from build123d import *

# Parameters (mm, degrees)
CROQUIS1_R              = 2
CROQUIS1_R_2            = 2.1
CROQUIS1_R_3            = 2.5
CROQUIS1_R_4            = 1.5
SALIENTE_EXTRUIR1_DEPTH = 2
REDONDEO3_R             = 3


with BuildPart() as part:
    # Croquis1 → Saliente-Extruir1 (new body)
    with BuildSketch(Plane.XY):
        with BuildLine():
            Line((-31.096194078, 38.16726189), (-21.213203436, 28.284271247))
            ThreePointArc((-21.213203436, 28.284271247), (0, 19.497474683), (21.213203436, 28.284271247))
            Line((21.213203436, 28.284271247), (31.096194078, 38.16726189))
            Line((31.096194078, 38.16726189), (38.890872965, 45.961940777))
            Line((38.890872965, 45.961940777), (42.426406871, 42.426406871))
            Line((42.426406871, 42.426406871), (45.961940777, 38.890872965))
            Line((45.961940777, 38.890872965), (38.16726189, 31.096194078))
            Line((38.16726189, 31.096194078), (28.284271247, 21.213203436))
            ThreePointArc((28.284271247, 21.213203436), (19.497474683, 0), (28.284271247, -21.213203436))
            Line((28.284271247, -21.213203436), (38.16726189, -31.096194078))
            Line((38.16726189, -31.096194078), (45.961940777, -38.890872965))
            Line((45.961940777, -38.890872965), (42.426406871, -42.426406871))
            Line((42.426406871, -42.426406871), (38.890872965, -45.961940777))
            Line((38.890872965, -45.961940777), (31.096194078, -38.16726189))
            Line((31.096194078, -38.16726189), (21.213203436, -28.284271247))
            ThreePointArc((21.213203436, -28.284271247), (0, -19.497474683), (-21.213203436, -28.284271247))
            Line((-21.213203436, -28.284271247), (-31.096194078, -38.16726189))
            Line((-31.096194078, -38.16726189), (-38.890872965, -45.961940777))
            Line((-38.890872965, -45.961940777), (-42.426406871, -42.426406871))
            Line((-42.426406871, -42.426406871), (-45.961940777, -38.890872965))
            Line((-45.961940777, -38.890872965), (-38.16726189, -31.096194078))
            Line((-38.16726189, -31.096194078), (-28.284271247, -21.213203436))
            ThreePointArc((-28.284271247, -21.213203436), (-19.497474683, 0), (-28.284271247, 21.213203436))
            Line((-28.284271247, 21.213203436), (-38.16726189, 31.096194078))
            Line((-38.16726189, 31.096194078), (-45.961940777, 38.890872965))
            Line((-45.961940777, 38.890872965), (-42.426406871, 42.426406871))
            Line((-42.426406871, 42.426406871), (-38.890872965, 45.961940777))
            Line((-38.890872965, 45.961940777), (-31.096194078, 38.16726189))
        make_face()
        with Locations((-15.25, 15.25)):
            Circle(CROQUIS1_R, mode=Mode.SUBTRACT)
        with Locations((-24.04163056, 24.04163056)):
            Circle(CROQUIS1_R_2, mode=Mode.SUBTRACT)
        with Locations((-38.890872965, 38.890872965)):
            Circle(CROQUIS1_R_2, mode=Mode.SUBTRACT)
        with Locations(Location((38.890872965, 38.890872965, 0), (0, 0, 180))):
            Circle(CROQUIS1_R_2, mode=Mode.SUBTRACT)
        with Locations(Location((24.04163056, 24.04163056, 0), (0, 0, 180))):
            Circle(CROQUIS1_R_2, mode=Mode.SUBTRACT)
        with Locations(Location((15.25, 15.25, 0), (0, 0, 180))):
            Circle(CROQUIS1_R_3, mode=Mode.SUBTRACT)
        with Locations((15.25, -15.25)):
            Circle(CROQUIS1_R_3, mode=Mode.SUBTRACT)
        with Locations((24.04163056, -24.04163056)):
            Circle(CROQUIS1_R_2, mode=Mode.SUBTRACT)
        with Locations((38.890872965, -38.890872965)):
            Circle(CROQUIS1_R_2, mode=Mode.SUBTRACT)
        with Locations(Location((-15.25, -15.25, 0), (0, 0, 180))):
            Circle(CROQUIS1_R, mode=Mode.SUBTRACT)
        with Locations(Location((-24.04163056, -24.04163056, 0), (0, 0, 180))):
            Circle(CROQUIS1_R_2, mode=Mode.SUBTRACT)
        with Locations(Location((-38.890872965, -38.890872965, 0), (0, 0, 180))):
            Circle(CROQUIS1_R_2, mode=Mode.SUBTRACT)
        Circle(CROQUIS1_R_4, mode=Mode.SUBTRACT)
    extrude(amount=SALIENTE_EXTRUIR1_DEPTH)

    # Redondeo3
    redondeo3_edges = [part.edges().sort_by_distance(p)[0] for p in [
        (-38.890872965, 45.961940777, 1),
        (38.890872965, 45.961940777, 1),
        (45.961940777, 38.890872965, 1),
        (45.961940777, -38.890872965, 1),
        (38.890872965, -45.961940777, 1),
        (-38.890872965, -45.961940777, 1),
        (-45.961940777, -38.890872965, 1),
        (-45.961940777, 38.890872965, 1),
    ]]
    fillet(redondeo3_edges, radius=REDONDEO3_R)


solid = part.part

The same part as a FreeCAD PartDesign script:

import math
import FreeCAD as App
import Part
import Sketcher
from FreeCAD import Vector
Q = App.Units.Quantity


def edges_at(feature, points):
    """Names of the edges that pass closest to the given points."""
    edges = feature.Shape.Edges
    near = lambda p: min(range(len(edges)), key=lambda i: edges[i].distToShape(Part.Vertex(*p))[0])
    return sorted({f"Edge{near(p) + 1}" for p in points})

doc = App.newDocument("Part")
params = doc.addObject("Spreadsheet::Sheet", "Params")
for row, (alias, value) in enumerate([
    ("sketch1_diameter", "5 mm"),
    ("sketch1_diameter2", "4 mm"),
    ("sketch1_diameter3", "3 mm"),
    ("sketch1_radius", "30 mm"),
    ("sketch1_diameter4", "4.2 mm"),
    ("pad1_length", "2 mm"),
    ("fillet_radius", "3 mm"),
], start=1):
    params.set(f"A{row}", alias)
    params.set(f"B{row}", "=" + value)
    params.setAlias(f"B{row}", alias)

body = doc.addObject("PartDesign::Body", "Body")

sketch1 = body.newObject("Sketcher::SketchObject", "Sketch")
sketch1.AttachmentSupport = (doc.getObject("XY_Plane"), [""])
sketch1.MapMode = "FlatFace"
sketch1.addGeometry(Part.LineSegment(Vector(-21.213203, 28.284271, 0), Vector(-31.096194, 38.167262, 0)), False)
sketch1.addGeometry(Part.LineSegment(Vector(-31.096194, 38.167262, 0), Vector(-38.890873, 45.961941, 0)), False)
sketch1.addGeometry(Part.LineSegment(Vector(-38.890873, 45.961941, 0), Vector(-45.961941, 38.890873, 0)), False)
sketch1.addGeometry(Part.LineSegment(Vector(-45.961941, 38.890873, 0), Vector(-38.167262, 31.096194, 0)), False)
sketch1.addGeometry(Part.LineSegment(Vector(-38.167262, 31.096194, 0), Vector(-28.284271, 21.213203, 0)), False)
sketch1.addGeometry(Part.ArcOfCircle(Part.Circle(Vector(-49.497475, 0, 0), Vector(0, 0, 1), 30), math.radians(-45), math.radians(45)), False)
sketch1.addGeometry(Part.LineSegment(Vector(-28.284271, -21.213203, 0), Vector(-38.167262, -31.096194, 0)), False)
sketch1.addGeometry(Part.LineSegment(Vector(-38.167262, -31.096194, 0), Vector(-45.961941, -38.890873, 0)), False)
sketch1.addGeometry(Part.LineSegment(Vector(-45.961941, -38.890873, 0), Vector(-38.890873, -45.961941, 0)), False)
sketch1.addGeometry(Part.LineSegment(Vector(-38.890873, -45.961941, 0), Vector(-31.096194, -38.167262, 0)), False)
sketch1.addGeometry(Part.LineSegment(Vector(-31.096194, -38.167262, 0), Vector(-21.213203, -28.284271, 0)), False)
sketch1.addGeometry(Part.ArcOfCircle(Part.Circle(Vector(0, -49.497475, 0), Vector(0, 0, 1), 30), math.radians(45), math.radians(135)), False)
sketch1.addGeometry(Part.LineSegment(Vector(21.213203, -28.284271, 0), Vector(31.096194, -38.167262, 0)), False)
sketch1.addGeometry(Part.LineSegment(Vector(31.096194, -38.167262, 0), Vector(38.890873, -45.961941, 0)), False)
sketch1.addGeometry(Part.LineSegment(Vector(38.890873, -45.961941, 0), Vector(45.961941, -38.890873, 0)), False)
sketch1.addGeometry(Part.LineSegment(Vector(45.961941, -38.890873, 0), Vector(38.167262, -31.096194, 0)), False)
sketch1.addGeometry(Part.LineSegment(Vector(38.167262, -31.096194, 0), Vector(28.284271, -21.213203, 0)), False)
sketch1.addGeometry(Part.ArcOfCircle(Part.Circle(Vector(49.497475, 0, 0), Vector(0, 0, 1), 30), math.radians(135), math.radians(225)), False)
sketch1.addGeometry(Part.LineSegment(Vector(28.284271, 21.213203, 0), Vector(38.167262, 31.096194, 0)), False)
sketch1.addGeometry(Part.LineSegment(Vector(38.167262, 31.096194, 0), Vector(45.961941, 38.890873, 0)), False)
sketch1.addGeometry(Part.LineSegment(Vector(45.961941, 38.890873, 0), Vector(38.890873, 45.961941, 0)), False)
sketch1.addGeometry(Part.LineSegment(Vector(38.890873, 45.961941, 0), Vector(31.096194, 38.167262, 0)), False)
sketch1.addGeometry(Part.LineSegment(Vector(31.096194, 38.167262, 0), Vector(21.213203, 28.284271, 0)), False)
sketch1.addGeometry(Part.ArcOfCircle(Part.Circle(Vector(0, 49.497475, 0), Vector(0, 0, 1), 30), math.radians(-135), math.radians(-45)), False)
sketch1.addGeometry(Part.Circle(Vector(38.890873, -38.890873, 0), Vector(0, 0, 1), 2.1), False)
sketch1.addGeometry(Part.Circle(Vector(24.041631, -24.041631, 0), Vector(0, 0, 1), 2.1), False)
sketch1.addGeometry(Part.Circle(Vector(15.25, -15.25, 0), Vector(0, 0, 1), 2.5), False)
sketch1.addGeometry(Part.Circle(Vector(-38.890873, -38.890873, 0), Vector(0, 0, 1), 2.1), False)
sketch1.addGeometry(Part.Circle(Vector(-24.041631, -24.041631, 0), Vector(0, 0, 1), 2.1), False)
sketch1.addGeometry(Part.Circle(Vector(-15.25, -15.25, 0), Vector(0, 0, 1), 2), False)
sketch1.addGeometry(Part.Circle(Vector(15.25, 15.25, 0), Vector(0, 0, 1), 2.5), False)
sketch1.addGeometry(Part.Circle(Vector(24.041631, 24.041631, 0), Vector(0, 0, 1), 2.1), False)
sketch1.addGeometry(Part.Circle(Vector(38.890873, 38.890873, 0), Vector(0, 0, 1), 2.1), False)
sketch1.addGeometry(Part.Circle(Vector(0, 0, 0), Vector(0, 0, 1), 1.5), False)
sketch1.addGeometry(Part.Circle(Vector(-15.25, 15.25, 0), Vector(0, 0, 1), 2), False)
sketch1.addGeometry(Part.Circle(Vector(-24.041631, 24.041631, 0), Vector(0, 0, 1), 2.1), False)
sketch1.addGeometry(Part.Circle(Vector(-38.890873, 38.890873, 0), Vector(0, 0, 1), 2.1), False)
sketch1.addConstraint(Sketcher.Constraint("Coincident", 0, 2, 1, 1))
sketch1.addConstraint(Sketcher.Constraint("Coincident", 1, 2, 2, 1))
sketch1.addConstraint(Sketcher.Constraint("Coincident", 2, 2, 3, 1))
sketch1.addConstraint(Sketcher.Constraint("Coincident", 3, 2, 4, 1))
sketch1.addConstraint(Sketcher.Constraint("Tangent", 4, 2, 5, 2))
sketch1.addConstraint(Sketcher.Constraint("Tangent", 5, 1, 6, 1))
sketch1.addConstraint(Sketcher.Constraint("Coincident", 6, 2, 7, 1))
sketch1.addConstraint(Sketcher.Constraint("Coincident", 7, 2, 8, 1))
sketch1.addConstraint(Sketcher.Constraint("Coincident", 8, 2, 9, 1))
sketch1.addConstraint(Sketcher.Constraint("Coincident", 9, 2, 10, 1))
sketch1.addConstraint(Sketcher.Constraint("Tangent", 10, 2, 11, 2))
sketch1.addConstraint(Sketcher.Constraint("Tangent", 11, 1, 12, 1))
sketch1.addConstraint(Sketcher.Constraint("Coincident", 12, 2, 13, 1))
sketch1.addConstraint(Sketcher.Constraint("Coincident", 13, 2, 14, 1))
sketch1.addConstraint(Sketcher.Constraint("Coincident", 14, 2, 15, 1))
sketch1.addConstraint(Sketcher.Constraint("Coincident", 15, 2, 16, 1))
sketch1.addConstraint(Sketcher.Constraint("Tangent", 16, 2, 17, 2))
sketch1.addConstraint(Sketcher.Constraint("Tangent", 17, 1, 18, 1))
sketch1.addConstraint(Sketcher.Constraint("Coincident", 18, 2, 19, 1))
sketch1.addConstraint(Sketcher.Constraint("Coincident", 19, 2, 20, 1))
sketch1.addConstraint(Sketcher.Constraint("Coincident", 20, 2, 21, 1))
sketch1.addConstraint(Sketcher.Constraint("Coincident", 21, 2, 22, 1))
sketch1.addConstraint(Sketcher.Constraint("Tangent", 22, 2, 23, 2))
sketch1.addConstraint(Sketcher.Constraint("Tangent", 23, 1, 0, 1))
sketch1.addConstraint(Sketcher.Constraint("Coincident", 33, 3, -1, 1))
sketch1.addConstraint(Sketcher.Constraint("Equal", 5, 11))
sketch1.addConstraint(Sketcher.Constraint("Equal", 11, 17))
sketch1.addConstraint(Sketcher.Constraint("Equal", 17, 23))
sketch1.addConstraint(Sketcher.Constraint("Equal", 24, 25))
sketch1.addConstraint(Sketcher.Constraint("Equal", 25, 27))
sketch1.addConstraint(Sketcher.Constraint("Equal", 27, 28))
sketch1.addConstraint(Sketcher.Constraint("Equal", 26, 30))
sketch1.addConstraint(Sketcher.Constraint("Equal", 28, 31))
sketch1.addConstraint(Sketcher.Constraint("Equal", 31, 32))
sketch1.addConstraint(Sketcher.Constraint("Equal", 29, 34))
sketch1.addConstraint(Sketcher.Constraint("Equal", 32, 35))
sketch1.addConstraint(Sketcher.Constraint("Equal", 35, 36))
sketch1.addConstraint(Sketcher.Constraint("Symmetric", 5, 3, 17, 3, -1, 1))
sketch1.addConstraint(Sketcher.Constraint("Symmetric", 11, 3, 23, 3, -1, 1))
sketch1.addConstraint(Sketcher.Constraint("Symmetric", 29, 3, 30, 3, -1, 1))
sketch1.addConstraint(Sketcher.Constraint("Symmetric", 28, 3, 31, 3, -1, 1))
sketch1.addConstraint(Sketcher.Constraint("Symmetric", 27, 3, 32, 3, -1, 1))
sketch1.addConstraint(Sketcher.Constraint("Symmetric", 26, 3, 34, 3, -1, 1))
sketch1.addConstraint(Sketcher.Constraint("Symmetric", 25, 3, 35, 3, -1, 1))
sketch1.addConstraint(Sketcher.Constraint("Symmetric", 24, 3, 36, 3, -1, 1))
sketch1.addConstraint(Sketcher.Constraint("Symmetric", 0, 2, 12, 2, -1, 1))
sketch1.addConstraint(Sketcher.Constraint("Symmetric", 1, 2, 13, 2, -1, 1))
sketch1.addConstraint(Sketcher.Constraint("Symmetric", 2, 2, 14, 2, -1, 1))
sketch1.addConstraint(Sketcher.Constraint("Symmetric", 3, 2, 15, 2, -1, 1))
sketch1.addConstraint(Sketcher.Constraint("Symmetric", 6, 2, 18, 2, -1, 1))
sketch1.addConstraint(Sketcher.Constraint("Symmetric", 7, 2, 19, 2, -1, 1))
sketch1.addConstraint(Sketcher.Constraint("Symmetric", 8, 2, 20, 2, -1, 1))
sketch1.addConstraint(Sketcher.Constraint("Symmetric", 9, 2, 21, 2, -1, 1))
sketch1.addConstraint(Sketcher.Constraint("Symmetric", 24, 3, 27, 3, -2))
sketch1.addConstraint(Sketcher.Constraint("Symmetric", 25, 3, 28, 3, -2))
sketch1.addConstraint(Sketcher.Constraint("Symmetric", 26, 3, 29, 3, -2))
sketch1.addConstraint(Sketcher.Constraint("Symmetric", 10, 2, 11, 1, -2))
sketch1.addConstraint(Sketcher.Constraint("Symmetric", 8, 2, 13, 2, -2))
sketch1.addConstraint(Sketcher.Constraint("Symmetric", 7, 2, 14, 2, -2))
sketch1.addConstraint(Sketcher.Constraint("Symmetric", 6, 2, 15, 2, -2))
sketch1.addConstraint(Sketcher.Constraint("PointOnObject", 5, 3, -1))
sketch1.addConstraint(Sketcher.Constraint("Parallel", 0, 1))
sketch1.addConstraint(Sketcher.Constraint("Perpendicular", 1, 2))
sketch1.addConstraint(Sketcher.Constraint("Perpendicular", 2, 3))
sketch1.addConstraint(Sketcher.Constraint("Parallel", 3, 4))
sketch1.addConstraint(Sketcher.Constraint("Perpendicular", 4, 6))
sketch1.addConstraint(Sketcher.Constraint("Horizontal", 36, 3, 2, 2))
sketch1.addConstraint(Sketcher.Constraint("Horizontal", 9, 2, 12, 2))
sketch1.addConstraint(Sketcher.Constraint("Vertical", 36, 3, 1, 2))
sketch1.addConstraint(Sketcher.Constraint("Equal", 1, 3))
sketch1.addConstraint(Sketcher.Constraint("Equal", 0, 4))
sketch1.addConstraint(Sketcher.Constraint("Diameter", 26, Q("5 mm")))
sketch1.addConstraint(Sketcher.Constraint("Diameter", 29, Q("4 mm")))
sketch1.addConstraint(Sketcher.Constraint("Diameter", 33, Q("3 mm")))
sketch1.addConstraint(Sketcher.Constraint("Radius", 5, Q("30 mm")))
sketch1.addConstraint(Sketcher.Constraint("Diameter", 24, Q("4.2 mm")))
sketch1.addConstraint(Sketcher.Constraint("Distance", 2, Q("10 mm")))
sketch1.addConstraint(Sketcher.Constraint("DistanceX", 29, 3, 26, 3, Q("30.5 mm")))
sketch1.addConstraint(Sketcher.Constraint("DistanceY", 26, 3, 30, 3, Q("30.5 mm")))
sketch1.addConstraint(Sketcher.Constraint("DistanceY", 11, 3, 24, 3, Q("10.606602 mm")))
sketch1.addConstraint(Sketcher.Constraint("Distance", 0, Q("13.976659 mm")))
sketch1.addConstraint(Sketcher.Constraint("DistanceX", -1, 1, 25, 3, Q("24.041631 mm")))
sketch1.addConstraint(Sketcher.Constraint("DistanceY", 25, 3, -1, 1, Q("24.041631 mm")))
sketch1.setExpression("Constraints[71]", "Params.sketch1_diameter")
sketch1.setExpression("Constraints[72]", "Params.sketch1_diameter2")
sketch1.setExpression("Constraints[73]", "Params.sketch1_diameter3")
sketch1.setExpression("Constraints[74]", "Params.sketch1_radius")
sketch1.setExpression("Constraints[75]", "Params.sketch1_diameter4")
pad1 = body.newObject("PartDesign::Pad", "Pad")
pad1.Profile = sketch1
pad1.setExpression("Length", "Params.pad1_length")
doc.recompute()

fillet = body.newObject("PartDesign::Fillet", "Fillet")
fillet.Base = (pad1, edges_at(pad1, [
    (-38.891, 45.962, 1),
    (38.891, 45.962, 1),
    (45.962, 38.891, 1),
    (45.962, -38.891, 1),
    (38.891, -45.962, 1),
    (-38.891, -45.962, 1),
    (-45.962, -38.891, 1),
    (-45.962, 38.891, 1),
]))
fillet.setExpression("Radius", "Params.fillet_radius")

doc.recompute()
